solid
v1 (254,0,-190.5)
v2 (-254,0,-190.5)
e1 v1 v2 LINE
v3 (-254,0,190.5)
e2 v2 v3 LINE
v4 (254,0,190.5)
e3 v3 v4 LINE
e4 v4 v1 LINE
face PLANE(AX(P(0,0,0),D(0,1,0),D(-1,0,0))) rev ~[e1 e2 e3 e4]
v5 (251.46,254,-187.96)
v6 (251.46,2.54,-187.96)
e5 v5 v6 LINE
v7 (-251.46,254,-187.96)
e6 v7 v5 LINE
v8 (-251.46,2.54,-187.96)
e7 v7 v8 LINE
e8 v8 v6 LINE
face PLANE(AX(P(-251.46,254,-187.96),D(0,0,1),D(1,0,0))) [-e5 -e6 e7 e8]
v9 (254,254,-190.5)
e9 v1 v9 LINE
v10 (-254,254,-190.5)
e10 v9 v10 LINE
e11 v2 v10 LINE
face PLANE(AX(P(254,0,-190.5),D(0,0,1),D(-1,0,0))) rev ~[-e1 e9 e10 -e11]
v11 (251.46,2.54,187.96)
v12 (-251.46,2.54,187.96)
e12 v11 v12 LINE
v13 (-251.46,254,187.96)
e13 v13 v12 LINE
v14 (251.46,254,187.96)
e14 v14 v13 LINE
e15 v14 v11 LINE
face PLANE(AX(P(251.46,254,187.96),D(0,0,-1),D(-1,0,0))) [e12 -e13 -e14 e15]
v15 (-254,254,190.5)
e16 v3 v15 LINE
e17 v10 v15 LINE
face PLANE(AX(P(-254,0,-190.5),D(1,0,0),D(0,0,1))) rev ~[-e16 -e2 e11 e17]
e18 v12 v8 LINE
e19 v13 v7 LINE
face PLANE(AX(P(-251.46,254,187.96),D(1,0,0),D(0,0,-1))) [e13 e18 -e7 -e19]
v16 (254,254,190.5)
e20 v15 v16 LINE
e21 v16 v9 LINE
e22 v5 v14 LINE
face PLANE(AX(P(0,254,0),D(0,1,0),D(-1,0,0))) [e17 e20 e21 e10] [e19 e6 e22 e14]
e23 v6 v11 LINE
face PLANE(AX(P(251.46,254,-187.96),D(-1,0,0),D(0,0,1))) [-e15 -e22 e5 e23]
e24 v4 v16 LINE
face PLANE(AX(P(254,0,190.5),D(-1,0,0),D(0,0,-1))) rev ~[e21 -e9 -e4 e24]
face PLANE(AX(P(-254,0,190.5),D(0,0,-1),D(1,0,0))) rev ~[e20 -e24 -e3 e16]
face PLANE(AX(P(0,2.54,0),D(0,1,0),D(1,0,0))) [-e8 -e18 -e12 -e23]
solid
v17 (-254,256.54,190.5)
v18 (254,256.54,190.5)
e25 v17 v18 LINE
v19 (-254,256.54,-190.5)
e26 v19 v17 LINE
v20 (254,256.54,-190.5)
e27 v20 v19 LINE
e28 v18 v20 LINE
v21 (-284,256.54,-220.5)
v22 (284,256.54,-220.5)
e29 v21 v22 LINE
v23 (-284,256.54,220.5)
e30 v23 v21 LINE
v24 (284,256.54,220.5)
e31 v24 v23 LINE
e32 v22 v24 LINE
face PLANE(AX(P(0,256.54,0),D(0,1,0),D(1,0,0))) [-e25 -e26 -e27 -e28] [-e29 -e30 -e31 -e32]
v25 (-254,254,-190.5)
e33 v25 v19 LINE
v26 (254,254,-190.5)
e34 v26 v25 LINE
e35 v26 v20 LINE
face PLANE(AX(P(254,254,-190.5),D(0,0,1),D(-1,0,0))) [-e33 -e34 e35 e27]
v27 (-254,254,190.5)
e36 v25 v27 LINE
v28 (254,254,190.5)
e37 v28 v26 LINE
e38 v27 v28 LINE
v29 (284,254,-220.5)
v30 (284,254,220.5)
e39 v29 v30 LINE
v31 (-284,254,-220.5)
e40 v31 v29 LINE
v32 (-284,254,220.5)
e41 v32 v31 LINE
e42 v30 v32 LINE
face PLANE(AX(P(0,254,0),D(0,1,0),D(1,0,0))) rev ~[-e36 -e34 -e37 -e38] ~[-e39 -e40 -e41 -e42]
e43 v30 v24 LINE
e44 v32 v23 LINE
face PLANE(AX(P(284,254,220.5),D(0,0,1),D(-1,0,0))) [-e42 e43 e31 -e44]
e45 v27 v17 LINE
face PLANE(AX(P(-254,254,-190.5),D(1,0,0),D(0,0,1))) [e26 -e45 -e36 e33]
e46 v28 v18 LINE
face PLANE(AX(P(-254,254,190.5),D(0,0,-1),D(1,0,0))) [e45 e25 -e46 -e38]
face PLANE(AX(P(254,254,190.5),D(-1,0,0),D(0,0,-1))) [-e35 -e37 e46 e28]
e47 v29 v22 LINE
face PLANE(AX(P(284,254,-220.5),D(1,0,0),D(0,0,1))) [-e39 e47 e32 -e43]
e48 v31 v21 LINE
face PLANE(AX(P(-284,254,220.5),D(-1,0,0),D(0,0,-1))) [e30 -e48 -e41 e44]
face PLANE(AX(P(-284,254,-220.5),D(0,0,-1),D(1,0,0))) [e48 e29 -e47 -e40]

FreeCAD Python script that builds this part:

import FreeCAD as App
import Part
import Sketcher

V = App.Vector
Q = App.Units.Quantity


def add_polygon(sketch, points):
    """Adds a closed chain of lines whose ends are joined by coincident constraints."""
    first, n = sketch.GeometryCount, len(points)
    for a, b in zip(points, points[1:] + points[:1]):
        sketch.addGeometry(Part.LineSegment(App.Vector(*a, 0), App.Vector(*b, 0)), False)
    for i in range(n):
        sketch.addConstraint(Sketcher.Constraint("Coincident", first + i, 2, first + (i + 1) % n, 1))

doc = App.newDocument("Part")
params = doc.addObject("Spreadsheet::Sheet", "Params")
for row, (alias, value) in enumerate([
    ("sketch1_width", "20 in"),
    ("sketch1_height", "15 in"),
    ("pad1_length", "10 in"),
    ("sketch2_width", "20 in"),
    ("sketch2_height", "15 in"),
    ("pad2_length", "0.1 in"),
    ("sketch3_width", "19.8 in"),
    ("sketch3_height", "14.8 in"),
    ("pocket1_length", "9.9 in"),
], start=1):
    params.set(f"A{row}", alias)
    params.set(f"B{row}", "=" + value)
    params.setAlias(f"B{row}", alias)

body = doc.addObject("PartDesign::Body", "Body")
body.AllowCompound = True

# Sketch on XZ plane
sketch1 = body.newObject("Sketcher::SketchObject", "Sketch")
sketch1.AttachmentSupport = (doc.getObject("XZ_Plane"), [""])
sketch1.MapMode = "FlatFace"
add_polygon(sketch1, [(254, 190), (254, -190), (-254, -190), (-254, 190)])  # lines 0-3
sketch1.addConstraint([
    Sketcher.Constraint("Vertical", 0),
    Sketcher.Constraint("Horizontal", 1),
    Sketcher.Constraint("Vertical", 2),
    Sketcher.Constraint("Horizontal", 3),
    Sketcher.Constraint("Symmetric", 0, 2, 2, 2, -1, 1),
    Sketcher.Constraint("DistanceX", 1, 2, 1, 1, Q("20 in")),
    Sketcher.Constraint("DistanceY", 0, 2, 0, 1, Q("15 in")),
])
sketch1.setExpression("Constraints[9]", "Params.sketch1_width")
sketch1.setExpression("Constraints[10]", "Params.sketch1_height")
pad1 = body.newObject("PartDesign::Pad", "Pad")
pad1.Profile = sketch1
pad1.setExpression("Length", "Params.pad1_length")
pad1.Reversed = True

# Sketch on XZ plane
sketch2 = body.newObject("Sketcher::SketchObject", "Sketch001")
sketch2.AttachmentSupport = (doc.getObject("XZ_Plane"), [""])
sketch2.MapMode = "FlatFace"
sketch2.AttachmentOffset = App.Placement(V(0, 0, -10 * 25.4), App.Rotation())
add_polygon(sketch2, [(284, -220), (-284, -220), (-284, 220), (284, 220)])  # lines 0-3
add_polygon(sketch2, [(-254, -190), (254, -190), (254, 190), (-254, 190)])  # lines 4-7
sketch2.addConstraint([
    Sketcher.Constraint("Horizontal", 0),
    Sketcher.Constraint("Vertical", 1),
    Sketcher.Constraint("Horizontal", 2),
    Sketcher.Constraint("Vertical", 3),
    Sketcher.Constraint("Horizontal", 4),
    Sketcher.Constraint("Vertical", 5),
    Sketcher.Constraint("Horizontal", 6),
    Sketcher.Constraint("Vertical", 7),
    Sketcher.Constraint("Symmetric", 0, 2, 2, 2, -1, 1),
    Sketcher.Constraint("Symmetric", 4, 2, 6, 2, -1, 1),
    Sketcher.Constraint("DistanceX", 4, 1, 4, 2, Q("20 in")),
    Sketcher.Constraint("DistanceY", 5, 1, 5, 2, Q("15 in")),
    Sketcher.Constraint("DistanceX", 4, 2, 3, 2, Q("1.1811 in")),
    Sketcher.Constraint("DistanceY", 3, 2, 4, 2, Q("1.1811 in")),
])
sketch2.setExpression("Constraints[18]", "Params.sketch2_width")
sketch2.setExpression("Constraints[19]", "Params.sketch2_height")
pad2 = body.newObject("PartDesign::Pad", "Pad001")
pad2.Profile = sketch2
pad2.setExpression("Length", "Params.pad2_length")
pad2.Reversed = True

# Sketch on XZ plane
sketch3 = body.newObject("Sketcher::SketchObject", "Sketch002")
sketch3.AttachmentSupport = (doc.getObject("XZ_Plane"), [""])
sketch3.MapMode = "FlatFace"
sketch3.AttachmentOffset = App.Placement(V(0, 0, -10 * 25.4), App.Rotation())
add_polygon(sketch3, [(251, -188), (-251, -188), (-251, 188), (251, 188)])  # lines 0-3
sketch3.addConstraint([
    Sketcher.Constraint("Horizontal", 0),
    Sketcher.Constraint("Vertical", 1),
    Sketcher.Constraint("Horizontal", 2),
    Sketcher.Constraint("Vertical", 3),
    Sketcher.Constraint("Symmetric", 0, 2, 2, 2, -1, 1),
    Sketcher.Constraint("DistanceX", 0, 2, 0, 1, Q("19.8 in")),
    Sketcher.Constraint("DistanceY", 1, 1, 1, 2, Q("14.8 in")),
])
sketch3.setExpression("Constraints[9]", "Params.sketch3_width")
sketch3.setExpression("Constraints[10]", "Params.sketch3_height")
pocket1 = body.newObject("PartDesign::Pocket", "Pocket")
pocket1.Profile = sketch3
pocket1.setExpression("Length", "Params.pocket1_length")
pocket1.Reversed = True

doc.recompute()
